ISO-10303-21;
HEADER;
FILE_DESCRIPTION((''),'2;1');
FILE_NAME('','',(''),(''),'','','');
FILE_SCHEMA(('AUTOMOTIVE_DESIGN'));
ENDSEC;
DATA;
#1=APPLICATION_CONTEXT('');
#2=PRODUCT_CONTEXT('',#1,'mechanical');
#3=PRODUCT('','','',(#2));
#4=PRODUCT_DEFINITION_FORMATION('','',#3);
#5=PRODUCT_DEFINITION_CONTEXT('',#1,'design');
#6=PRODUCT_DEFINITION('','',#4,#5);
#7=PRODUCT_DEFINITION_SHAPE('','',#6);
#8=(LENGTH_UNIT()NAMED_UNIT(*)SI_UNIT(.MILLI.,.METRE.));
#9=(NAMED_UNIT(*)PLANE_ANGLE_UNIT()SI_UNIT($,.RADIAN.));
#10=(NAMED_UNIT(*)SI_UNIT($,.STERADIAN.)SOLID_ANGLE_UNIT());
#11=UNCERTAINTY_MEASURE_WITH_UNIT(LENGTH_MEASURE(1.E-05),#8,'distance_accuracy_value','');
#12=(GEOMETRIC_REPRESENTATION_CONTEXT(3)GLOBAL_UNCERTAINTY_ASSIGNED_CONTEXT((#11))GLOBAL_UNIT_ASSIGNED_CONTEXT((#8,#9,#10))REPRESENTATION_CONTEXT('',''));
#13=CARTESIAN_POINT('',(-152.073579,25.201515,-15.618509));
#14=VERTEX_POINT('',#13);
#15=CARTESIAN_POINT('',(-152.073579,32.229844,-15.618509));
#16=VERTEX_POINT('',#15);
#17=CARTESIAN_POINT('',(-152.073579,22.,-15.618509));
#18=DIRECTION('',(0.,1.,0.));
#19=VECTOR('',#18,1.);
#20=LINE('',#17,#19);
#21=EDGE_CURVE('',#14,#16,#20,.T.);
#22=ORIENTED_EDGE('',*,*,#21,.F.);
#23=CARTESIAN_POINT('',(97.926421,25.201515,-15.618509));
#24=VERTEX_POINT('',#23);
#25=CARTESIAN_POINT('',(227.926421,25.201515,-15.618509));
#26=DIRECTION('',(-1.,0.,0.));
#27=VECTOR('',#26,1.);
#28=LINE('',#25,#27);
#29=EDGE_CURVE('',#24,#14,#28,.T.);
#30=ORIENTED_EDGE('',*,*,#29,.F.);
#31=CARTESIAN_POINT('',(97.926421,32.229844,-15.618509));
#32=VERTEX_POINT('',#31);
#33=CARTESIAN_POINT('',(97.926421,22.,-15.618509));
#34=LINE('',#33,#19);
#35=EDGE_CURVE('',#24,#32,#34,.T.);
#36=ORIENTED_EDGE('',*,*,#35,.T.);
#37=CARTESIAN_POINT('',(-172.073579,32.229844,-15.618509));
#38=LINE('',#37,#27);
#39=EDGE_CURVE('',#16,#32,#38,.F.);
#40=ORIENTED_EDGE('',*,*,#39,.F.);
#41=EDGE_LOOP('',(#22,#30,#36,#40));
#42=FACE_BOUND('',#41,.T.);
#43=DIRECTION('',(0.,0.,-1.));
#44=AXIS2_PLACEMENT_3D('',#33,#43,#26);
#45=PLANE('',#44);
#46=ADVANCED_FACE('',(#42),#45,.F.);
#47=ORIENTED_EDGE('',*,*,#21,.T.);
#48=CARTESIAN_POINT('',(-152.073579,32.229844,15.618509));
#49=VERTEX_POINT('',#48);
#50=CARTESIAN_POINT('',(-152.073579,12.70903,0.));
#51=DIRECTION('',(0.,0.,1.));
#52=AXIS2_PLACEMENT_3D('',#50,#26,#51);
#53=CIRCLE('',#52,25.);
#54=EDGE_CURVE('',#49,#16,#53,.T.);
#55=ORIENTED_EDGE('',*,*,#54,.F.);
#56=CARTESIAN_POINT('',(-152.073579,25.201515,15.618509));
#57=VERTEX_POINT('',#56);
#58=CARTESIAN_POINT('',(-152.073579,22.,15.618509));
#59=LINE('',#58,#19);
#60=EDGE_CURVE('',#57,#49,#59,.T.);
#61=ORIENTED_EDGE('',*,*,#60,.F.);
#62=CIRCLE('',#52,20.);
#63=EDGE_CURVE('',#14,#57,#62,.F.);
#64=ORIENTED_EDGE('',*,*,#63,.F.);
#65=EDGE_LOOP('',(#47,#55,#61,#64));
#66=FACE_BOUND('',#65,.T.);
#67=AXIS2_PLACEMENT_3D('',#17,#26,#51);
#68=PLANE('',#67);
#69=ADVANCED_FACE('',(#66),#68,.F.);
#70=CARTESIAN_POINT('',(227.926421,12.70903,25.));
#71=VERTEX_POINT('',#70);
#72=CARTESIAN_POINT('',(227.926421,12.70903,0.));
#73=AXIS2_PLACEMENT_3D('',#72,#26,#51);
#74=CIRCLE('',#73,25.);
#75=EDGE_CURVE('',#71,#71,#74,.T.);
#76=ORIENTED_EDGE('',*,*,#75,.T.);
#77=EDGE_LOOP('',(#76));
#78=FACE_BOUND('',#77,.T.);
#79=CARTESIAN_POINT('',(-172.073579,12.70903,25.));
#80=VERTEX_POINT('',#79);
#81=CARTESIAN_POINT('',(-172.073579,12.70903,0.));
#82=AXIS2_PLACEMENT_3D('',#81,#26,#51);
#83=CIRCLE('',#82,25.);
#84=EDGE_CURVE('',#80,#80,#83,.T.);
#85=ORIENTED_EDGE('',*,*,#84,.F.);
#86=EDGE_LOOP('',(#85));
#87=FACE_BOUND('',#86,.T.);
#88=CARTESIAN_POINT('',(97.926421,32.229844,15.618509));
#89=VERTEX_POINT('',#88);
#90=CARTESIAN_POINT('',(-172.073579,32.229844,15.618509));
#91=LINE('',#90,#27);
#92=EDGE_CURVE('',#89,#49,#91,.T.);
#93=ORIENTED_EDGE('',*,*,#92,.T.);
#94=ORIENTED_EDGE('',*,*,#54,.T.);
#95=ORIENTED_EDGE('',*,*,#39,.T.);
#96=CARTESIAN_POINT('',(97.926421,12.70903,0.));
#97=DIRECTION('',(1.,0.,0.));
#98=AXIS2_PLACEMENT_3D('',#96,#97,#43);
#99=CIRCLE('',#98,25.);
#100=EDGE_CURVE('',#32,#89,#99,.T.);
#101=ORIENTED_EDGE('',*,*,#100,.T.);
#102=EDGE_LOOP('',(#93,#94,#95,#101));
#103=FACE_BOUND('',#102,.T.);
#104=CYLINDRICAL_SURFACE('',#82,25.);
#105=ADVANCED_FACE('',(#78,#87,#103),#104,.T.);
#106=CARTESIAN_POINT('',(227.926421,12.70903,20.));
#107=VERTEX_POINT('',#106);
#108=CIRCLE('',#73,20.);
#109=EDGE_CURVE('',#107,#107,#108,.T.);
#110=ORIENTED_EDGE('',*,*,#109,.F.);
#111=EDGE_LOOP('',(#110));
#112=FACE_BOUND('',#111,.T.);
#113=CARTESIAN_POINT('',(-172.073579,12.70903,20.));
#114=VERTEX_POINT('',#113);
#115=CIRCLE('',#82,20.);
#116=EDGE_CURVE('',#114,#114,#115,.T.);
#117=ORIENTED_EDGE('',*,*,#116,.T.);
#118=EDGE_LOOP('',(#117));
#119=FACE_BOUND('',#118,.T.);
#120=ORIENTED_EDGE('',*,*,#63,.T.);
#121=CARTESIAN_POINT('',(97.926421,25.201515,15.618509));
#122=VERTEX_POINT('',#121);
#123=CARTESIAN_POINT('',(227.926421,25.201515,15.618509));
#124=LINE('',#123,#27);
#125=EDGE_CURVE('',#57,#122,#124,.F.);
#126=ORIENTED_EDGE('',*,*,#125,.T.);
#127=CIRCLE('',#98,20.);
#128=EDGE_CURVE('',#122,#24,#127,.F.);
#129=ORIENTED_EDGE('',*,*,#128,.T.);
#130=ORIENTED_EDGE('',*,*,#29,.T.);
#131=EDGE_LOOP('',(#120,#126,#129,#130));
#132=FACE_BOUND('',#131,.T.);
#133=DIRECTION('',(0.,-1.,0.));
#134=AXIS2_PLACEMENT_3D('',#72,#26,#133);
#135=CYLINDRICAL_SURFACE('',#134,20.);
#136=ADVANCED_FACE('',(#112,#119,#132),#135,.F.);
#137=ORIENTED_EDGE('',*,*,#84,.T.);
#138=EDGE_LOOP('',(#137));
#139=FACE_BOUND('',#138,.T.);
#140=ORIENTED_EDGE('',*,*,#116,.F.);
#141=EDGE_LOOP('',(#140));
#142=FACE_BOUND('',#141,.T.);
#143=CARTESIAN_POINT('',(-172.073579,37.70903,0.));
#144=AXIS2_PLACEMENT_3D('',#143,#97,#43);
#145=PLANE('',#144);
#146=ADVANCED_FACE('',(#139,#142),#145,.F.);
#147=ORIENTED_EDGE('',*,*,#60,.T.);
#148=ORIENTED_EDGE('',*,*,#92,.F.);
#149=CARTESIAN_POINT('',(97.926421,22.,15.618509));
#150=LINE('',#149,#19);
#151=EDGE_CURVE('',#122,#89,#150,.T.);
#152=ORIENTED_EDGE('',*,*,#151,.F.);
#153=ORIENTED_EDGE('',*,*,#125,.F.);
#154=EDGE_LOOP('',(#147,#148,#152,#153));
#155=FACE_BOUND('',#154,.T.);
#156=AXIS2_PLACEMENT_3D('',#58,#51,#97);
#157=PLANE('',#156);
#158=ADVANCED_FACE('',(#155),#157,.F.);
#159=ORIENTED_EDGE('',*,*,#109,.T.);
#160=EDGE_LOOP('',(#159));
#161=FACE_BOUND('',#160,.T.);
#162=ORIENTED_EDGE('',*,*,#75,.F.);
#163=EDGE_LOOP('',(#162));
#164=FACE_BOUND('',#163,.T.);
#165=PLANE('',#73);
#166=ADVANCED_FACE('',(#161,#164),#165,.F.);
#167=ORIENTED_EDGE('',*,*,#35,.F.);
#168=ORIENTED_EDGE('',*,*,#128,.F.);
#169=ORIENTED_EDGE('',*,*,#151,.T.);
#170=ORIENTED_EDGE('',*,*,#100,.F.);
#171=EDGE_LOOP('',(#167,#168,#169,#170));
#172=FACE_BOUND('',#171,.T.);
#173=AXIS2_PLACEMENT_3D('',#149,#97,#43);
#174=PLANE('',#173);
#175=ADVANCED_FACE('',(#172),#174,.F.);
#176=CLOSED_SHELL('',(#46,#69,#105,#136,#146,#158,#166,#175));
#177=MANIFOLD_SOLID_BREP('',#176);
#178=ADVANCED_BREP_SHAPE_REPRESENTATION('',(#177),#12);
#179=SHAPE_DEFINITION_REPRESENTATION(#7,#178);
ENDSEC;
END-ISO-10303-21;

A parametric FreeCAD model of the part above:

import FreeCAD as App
import Part
import Sketcher
Q = App.Units.Quantity


def add_polygon(sketch, points):
    """Adds a closed chain of lines whose ends are joined by coincident constraints."""
    first, n = sketch.GeometryCount, len(points)
    for a, b in zip(points, points[1:] + points[:1]):
        sketch.addGeometry(Part.LineSegment(App.Vector(*a, 0), App.Vector(*b, 0)), False)
    for i in range(n):
        sketch.addConstraint(Sketcher.Constraint("Coincident", first + i, 2, first + (i + 1) % n, 1))

doc = App.newDocument("Part")
body = doc.addObject("PartDesign::Body", "Body")

sketch1 = body.newObject("Sketcher::SketchObject", "Sketch")
sketch1.AttachmentSupport = (doc.getObject("XY_Plane"), [""])
sketch1.MapMode = "FlatFace"
add_polygon(sketch1, [(-172.073579, 37.70903), (-172.073579, 12.70903), (227.926421, 12.70903), (227.926421, 37.70903)])
sketch1.addGeometry(Part.LineSegment(App.Vector(-172.073579, 12.70903, 0), App.Vector(227.926421, 12.70903, 0)), True)
sketch1.addConstraint(Sketcher.Constraint("Vertical", 0))
sketch1.addConstraint(Sketcher.Constraint("Horizontal", 1))
sketch1.addConstraint(Sketcher.Constraint("Vertical", 2))
sketch1.addConstraint(Sketcher.Constraint("Horizontal", 3))
sketch1.addConstraint(Sketcher.Constraint("Horizontal", 4))
sketch1.addConstraint(Sketcher.Constraint("Coincident", 4, 1, 0, 2))
sketch1.addConstraint(Sketcher.Constraint("Vertical", 2, 2, 4, 2))
sketch1.addConstraint(Sketcher.Constraint("DistanceX", 1, 1, 1, 2, Q("400 mm")))
sketch1.addConstraint(Sketcher.Constraint("DistanceY", 0, 2, 0, 1, Q("25 mm")))
sketch1.addConstraint(Sketcher.Constraint("DistanceX", 0, 2, -1, 1, Q("172.073579 mm")))
sketch1.addConstraint(Sketcher.Constraint("DistanceY", -1, 1, 0, 2, Q("12.70903 mm")))
revolution = body.newObject("PartDesign::Revolution", "Revolution")
revolution.Profile = sketch1
revolution.ReferenceAxis = (sketch1, ["Axis0"])
revolution.Angle = 360

sketch2 = body.newObject("Sketcher::SketchObject", "Sketch001")
sketch2.AttachmentSupport = (doc.getObject("YZ_Plane"), [""])
sketch2.MapMode = "FlatFace"
sketch2.AttachmentOffset = App.Placement(App.Vector(0, 0, -172.073579), App.Rotation())
sketch2.addGeometry(Part.Circle(App.Vector(12.70903, 0, 0), App.Vector(0, 0, 1), 20), False)
sketch2.addConstraint(Sketcher.Constraint("PointOnObject", 0, 3, -1))
sketch2.addConstraint(Sketcher.Constraint("Diameter", 0, Q("40 mm")))
sketch2.addConstraint(Sketcher.Constraint("DistanceX", -1, 1, 0, 3, Q("12.70903 mm")))
pocket1 = body.newObject("PartDesign::Pocket", "Pocket")
pocket1.Profile = sketch2
pocket1.Type = "ThroughAll"
pocket1.Reversed = True

sketch3 = body.newObject("Sketcher::SketchObject", "Sketch002")
sketch3.AttachmentSupport = (doc.getObject("XZ_Plane"), [""])
sketch3.MapMode = "FlatFace"
sketch3.AttachmentOffset = App.Placement(App.Vector(0, 0, -100), App.Rotation())
add_polygon(sketch3, [(-152.073579, -15.618509), (-152.073579, 15.618509), (97.926421, 15.618509), (97.926421, -15.618509)])
sketch3.addConstraint(Sketcher.Constraint("Vertical", 0))
sketch3.addConstraint(Sketcher.Constraint("Horizontal", 1))
sketch3.addConstraint(Sketcher.Constraint("Vertical", 2))
sketch3.addConstraint(Sketcher.Constraint("Horizontal", 3))
sketch3.addConstraint(Sketcher.Constraint("DistanceX", 1, 1, 1, 2, Q("250 mm")))
sketch3.addConstraint(Sketcher.Constraint("DistanceY", 0, 1, 0, 2, Q("31.237018 mm")))
sketch3.addConstraint(Sketcher.Constraint("DistanceX", 0, 2, -1, 1, Q("152.073579 mm")))
sketch3.addConstraint(Sketcher.Constraint("DistanceY", -1, 1, 0, 2, Q("15.618509 mm")))
pocket2 = body.newObject("PartDesign::Pocket", "Pocket001")
pocket2.Profile = sketch3
pocket2.Length = 78
pocket2.Reversed = True

doc.recompute()
